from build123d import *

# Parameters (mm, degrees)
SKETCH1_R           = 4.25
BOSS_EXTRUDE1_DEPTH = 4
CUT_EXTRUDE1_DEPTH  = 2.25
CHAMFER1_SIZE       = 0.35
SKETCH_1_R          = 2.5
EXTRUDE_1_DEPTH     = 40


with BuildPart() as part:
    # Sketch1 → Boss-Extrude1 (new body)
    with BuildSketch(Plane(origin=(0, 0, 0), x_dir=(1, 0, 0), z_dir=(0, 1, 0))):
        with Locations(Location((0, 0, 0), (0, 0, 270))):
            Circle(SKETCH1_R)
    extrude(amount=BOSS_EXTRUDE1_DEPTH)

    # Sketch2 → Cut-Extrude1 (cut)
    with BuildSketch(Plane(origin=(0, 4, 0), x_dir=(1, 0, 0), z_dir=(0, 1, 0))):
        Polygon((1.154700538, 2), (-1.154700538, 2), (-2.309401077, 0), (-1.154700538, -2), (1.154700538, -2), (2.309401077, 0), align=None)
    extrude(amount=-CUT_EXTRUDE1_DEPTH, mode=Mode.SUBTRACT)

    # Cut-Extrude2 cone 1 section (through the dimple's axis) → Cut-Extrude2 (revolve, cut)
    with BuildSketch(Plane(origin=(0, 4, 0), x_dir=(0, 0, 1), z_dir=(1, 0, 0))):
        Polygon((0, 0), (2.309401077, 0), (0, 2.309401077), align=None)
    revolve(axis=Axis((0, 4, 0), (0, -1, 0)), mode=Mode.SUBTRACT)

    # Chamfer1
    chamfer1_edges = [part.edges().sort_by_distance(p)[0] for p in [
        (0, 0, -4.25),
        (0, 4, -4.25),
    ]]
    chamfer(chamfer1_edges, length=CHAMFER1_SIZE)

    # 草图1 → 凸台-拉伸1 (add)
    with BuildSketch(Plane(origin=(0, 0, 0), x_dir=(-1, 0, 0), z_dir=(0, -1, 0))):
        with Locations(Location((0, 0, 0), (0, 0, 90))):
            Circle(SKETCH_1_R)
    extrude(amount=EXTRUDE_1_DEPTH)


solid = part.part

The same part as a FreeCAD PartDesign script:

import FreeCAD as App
import Part
import Sketcher
from FreeCAD import Vector
Q = App.Units.Quantity


def edges_at(feature, points):
    """Names of the edges that pass closest to the given points."""
    edges = feature.Shape.Edges
    near = lambda p: min(range(len(edges)), key=lambda i: edges[i].distToShape(Part.Vertex(*p))[0])
    return sorted({f"Edge{near(p) + 1}" for p in points})


def add_polygon(sketch, points):
    """Adds a closed chain of lines whose ends are joined by coincident constraints."""
    first, n = sketch.GeometryCount, len(points)
    for a, b in zip(points, points[1:] + points[:1]):
        sketch.addGeometry(Part.LineSegment(App.Vector(*a, 0), App.Vector(*b, 0)), False)
    for i in range(n):
        sketch.addConstraint(Sketcher.Constraint("Coincident", first + i, 2, first + (i + 1) % n, 1))

doc = App.newDocument("Part")
body = doc.addObject("PartDesign::Body", "Body")

# Sketch on XZ plane
sketch1 = doc.addObject("Sketcher::SketchObject", "Sketch")
body.addObject(sketch1)
sketch1.AttachmentSupport = (doc.XZ_Plane, [""])
sketch1.MapMode = "FlatFace"
sketch1.addGeometry(Part.Circle(Vector(0, 0, 0), Vector(0, 0, 1), 4.25), False)
sketch1.addConstraint(Sketcher.Constraint("Coincident", 0, 3, -1, 1))
sketch1.addConstraint(Sketcher.Constraint("Diameter", 0, 8.5))
pad1 = doc.addObject("PartDesign::Pad", "Pad")
body.addObject(pad1)
pad1.Profile = sketch1
pad1.Length = 4
pad1.Reversed = True

# Sketch on XZ plane
sketch2 = doc.addObject("Sketcher::SketchObject", "Sketch001")
body.addObject(sketch2)
sketch2.AttachmentSupport = (doc.XZ_Plane, [""])
sketch2.MapMode = "FlatFace"
sketch2.AttachmentOffset = App.Placement(Vector(0, 0, -4), App.Rotation())
add_polygon(sketch2, [(1.154701, -2), (-1.154701, -2), (-2.309401, 0), (-1.154701, 2), (1.154701, 2), (2.309401, 0)])  # lines 0-5
sketch2.addConstraint(Sketcher.Constraint("Horizontal", 0))
sketch2.addConstraint(Sketcher.Constraint("Horizontal", 3))
sketch2.addConstraint(Sketcher.Constraint("Symmetric", 0, 2, 3, 2, -1, 1))
sketch2.addConstraint(Sketcher.Constraint("Symmetric", 1, 2, 4, 2, -1, 1))
sketch2.addConstraint(Sketcher.Constraint("PointOnObject", 1, 2, -1))
sketch2.addConstraint(Sketcher.Constraint("Parallel", 2, 5))
sketch2.addConstraint(Sketcher.Constraint("Vertical", 0, 2, 2, 2))
sketch2.addConstraint(Sketcher.Constraint("Angle", 1, Q("120 deg")))
sketch2.addConstraint(Sketcher.Constraint("DistanceY", 0, 2, -1, 1, 2.0))
sketch2.addConstraint(Sketcher.Constraint("DistanceX", 0, 2, 0, 1, 2.309401))
pocket1 = doc.addObject("PartDesign::Pocket", "Pocket")
body.addObject(pocket1)
pocket1.Profile = sketch2
pocket1.Length = 2.25
pocket1.Reversed = True

# Sketch on YZ plane
sketch3 = doc.addObject("Sketcher::SketchObject", "Sketch002")
body.addObject(sketch3)
sketch3.AttachmentSupport = (doc.YZ_Plane, [""])
sketch3.MapMode = "FlatFace"
add_polygon(sketch3, [(4, 0), (4, 2.309401), (1.690599, 0)])  # lines 0-2
sketch3.addConstraint(Sketcher.Constraint("Vertical", 0))
sketch3.addConstraint(Sketcher.Constraint("Horizontal", 2))
sketch3.addConstraint(Sketcher.Constraint("PointOnObject", 1, 2, -1))
sketch3.addConstraint(Sketcher.Constraint("Equal", 2, 0))
sketch3.addConstraint(Sketcher.Constraint("DistanceX", -1, 1, 0, 2, 4.0))
sketch3.addConstraint(Sketcher.Constraint("DistanceX", 2, 1, 2, 2, 2.309401))
groove = doc.addObject("PartDesign::Groove", "Groove")
body.addObject(groove)
groove.Profile = sketch3
groove.ReferenceAxis = (sketch3, ["H_Axis"])
groove.Angle = 360
doc.recompute()

chamfer = doc.addObject("PartDesign::Chamfer", "Chamfer")
body.addObject(chamfer)
chamfer.Base = (groove, edges_at(groove, [(0, 0, -4.25), (0, 4, -4.25)]))
chamfer.Size = 0.35

# Sketch on XZ plane
sketch4 = doc.addObject("Sketcher::SketchObject", "Sketch003")
body.addObject(sketch4)
sketch4.AttachmentSupport = (doc.XZ_Plane, [""])
sketch4.MapMode = "FlatFace"
sketch4.addGeometry(Part.Circle(Vector(0, 0, 0), Vector(0, 0, 1), 2.5), False)
sketch4.addConstraint(Sketcher.Constraint("Coincident", 0, 3, -1, 1))
sketch4.addConstraint(Sketcher.Constraint("Diameter", 0, 5.0))
pad2 = doc.addObject("PartDesign::Pad", "Pad001")
body.addObject(pad2)
pad2.Profile = sketch4
pad2.Length = 40

doc.recompute()
